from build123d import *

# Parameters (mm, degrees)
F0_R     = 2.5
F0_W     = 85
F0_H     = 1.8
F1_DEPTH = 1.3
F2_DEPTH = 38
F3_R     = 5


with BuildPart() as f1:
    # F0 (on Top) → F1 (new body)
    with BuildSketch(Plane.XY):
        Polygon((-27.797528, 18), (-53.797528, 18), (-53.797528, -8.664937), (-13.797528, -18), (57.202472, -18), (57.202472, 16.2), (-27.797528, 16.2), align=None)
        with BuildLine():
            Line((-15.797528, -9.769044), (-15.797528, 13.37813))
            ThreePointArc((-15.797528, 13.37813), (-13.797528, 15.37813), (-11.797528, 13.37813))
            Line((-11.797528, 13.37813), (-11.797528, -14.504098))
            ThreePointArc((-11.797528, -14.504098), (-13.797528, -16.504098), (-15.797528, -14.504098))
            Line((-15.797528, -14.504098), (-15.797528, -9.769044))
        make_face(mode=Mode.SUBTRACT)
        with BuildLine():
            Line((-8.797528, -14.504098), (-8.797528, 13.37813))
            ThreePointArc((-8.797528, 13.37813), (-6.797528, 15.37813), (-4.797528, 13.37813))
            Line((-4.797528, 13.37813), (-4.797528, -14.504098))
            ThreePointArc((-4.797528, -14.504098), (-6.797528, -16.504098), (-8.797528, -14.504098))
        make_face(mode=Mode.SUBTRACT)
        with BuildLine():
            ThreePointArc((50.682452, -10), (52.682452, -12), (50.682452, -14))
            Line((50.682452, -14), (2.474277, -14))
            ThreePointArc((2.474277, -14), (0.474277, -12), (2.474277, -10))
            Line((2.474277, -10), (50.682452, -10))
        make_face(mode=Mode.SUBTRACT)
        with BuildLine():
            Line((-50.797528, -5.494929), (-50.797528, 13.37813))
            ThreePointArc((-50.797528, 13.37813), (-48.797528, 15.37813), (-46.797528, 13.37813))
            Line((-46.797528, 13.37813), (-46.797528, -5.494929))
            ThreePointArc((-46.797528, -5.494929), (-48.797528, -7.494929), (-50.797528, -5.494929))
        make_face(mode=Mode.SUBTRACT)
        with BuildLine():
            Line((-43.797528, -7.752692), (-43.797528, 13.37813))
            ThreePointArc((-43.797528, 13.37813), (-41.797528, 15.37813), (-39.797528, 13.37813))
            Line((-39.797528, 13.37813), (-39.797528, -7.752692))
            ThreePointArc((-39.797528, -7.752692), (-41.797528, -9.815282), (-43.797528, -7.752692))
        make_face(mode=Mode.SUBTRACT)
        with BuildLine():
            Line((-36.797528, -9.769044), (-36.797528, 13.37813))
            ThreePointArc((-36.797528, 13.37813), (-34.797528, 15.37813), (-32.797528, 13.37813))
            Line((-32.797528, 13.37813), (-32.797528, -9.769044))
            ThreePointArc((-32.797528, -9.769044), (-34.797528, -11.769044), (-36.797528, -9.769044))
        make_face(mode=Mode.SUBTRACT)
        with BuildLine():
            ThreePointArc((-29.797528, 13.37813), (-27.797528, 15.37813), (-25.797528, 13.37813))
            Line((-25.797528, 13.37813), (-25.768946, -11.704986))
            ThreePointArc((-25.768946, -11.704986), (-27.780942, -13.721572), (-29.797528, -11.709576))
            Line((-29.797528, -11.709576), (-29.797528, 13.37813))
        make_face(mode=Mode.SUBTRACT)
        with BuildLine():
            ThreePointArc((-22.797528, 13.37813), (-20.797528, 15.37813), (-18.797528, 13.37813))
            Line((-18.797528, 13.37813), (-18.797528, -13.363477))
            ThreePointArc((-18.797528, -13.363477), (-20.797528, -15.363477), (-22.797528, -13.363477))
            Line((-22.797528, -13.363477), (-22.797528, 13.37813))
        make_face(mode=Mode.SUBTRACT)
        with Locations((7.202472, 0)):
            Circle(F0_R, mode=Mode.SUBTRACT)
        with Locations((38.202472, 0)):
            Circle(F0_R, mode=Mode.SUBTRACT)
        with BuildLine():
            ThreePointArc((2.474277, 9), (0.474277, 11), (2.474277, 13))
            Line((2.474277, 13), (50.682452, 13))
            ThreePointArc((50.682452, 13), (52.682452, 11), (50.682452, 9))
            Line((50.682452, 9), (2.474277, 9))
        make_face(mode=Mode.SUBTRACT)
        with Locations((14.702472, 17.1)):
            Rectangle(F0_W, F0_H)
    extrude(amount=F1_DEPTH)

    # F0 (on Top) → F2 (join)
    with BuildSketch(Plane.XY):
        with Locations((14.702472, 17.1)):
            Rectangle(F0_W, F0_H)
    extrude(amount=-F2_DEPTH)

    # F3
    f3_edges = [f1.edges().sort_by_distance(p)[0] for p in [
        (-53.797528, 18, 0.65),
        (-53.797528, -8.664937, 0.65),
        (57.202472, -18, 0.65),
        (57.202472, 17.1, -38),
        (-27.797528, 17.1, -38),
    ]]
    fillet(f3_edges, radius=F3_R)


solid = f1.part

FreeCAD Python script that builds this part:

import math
import FreeCAD as App
import Part
import Sketcher
from FreeCAD import Vector


def edges_at(feature, points):
    """Names of the edges that pass closest to the given points."""
    edges = feature.Shape.Edges
    near = lambda p: min(range(len(edges)), key=lambda i: edges[i].distToShape(Part.Vertex(*p))[0])
    return sorted({f"Edge{near(p) + 1}" for p in points})


def add_polygon(sketch, points):
    """Adds a closed chain of lines whose ends are joined by coincident constraints."""
    first, n = sketch.GeometryCount, len(points)
    for a, b in zip(points, points[1:] + points[:1]):
        sketch.addGeometry(Part.LineSegment(App.Vector(*a, 0), App.Vector(*b, 0)), False)
    for i in range(n):
        sketch.addConstraint(Sketcher.Constraint("Coincident", first + i, 2, first + (i + 1) % n, 1))

doc = App.newDocument("Part")
params = doc.addObject("Spreadsheet::Sheet", "Params")
for row, (alias, value) in enumerate([
    ("sketch1_diameter", "5 mm"),
    ("sketch1_radius", "2 mm"),
    ("sketch1_width", "71 mm"),
    ("sketch1_width2", "111 mm"),
    ("sketch1_height", "36 mm"),
    ("pad1_length", "1.3 mm"),
    ("sketch2_width", "85 mm"),
    ("sketch2_height", "1.8 mm"),
    ("pad2_length", "38 mm"),
    ("fillet_radius", "5 mm"),
], start=1):
    params.set(f"A{row}", alias)
    params.set(f"B{row}", "=" + value)
    params.setAlias(f"B{row}", alias)

body = doc.addObject("PartDesign::Body", "Body")

# Sketch on XY plane
sketch1 = doc.addObject("Sketcher::SketchObject", "Sketch")
body.addObject(sketch1)
sketch1.AttachmentSupport = (doc.XY_Plane, [""])
sketch1.MapMode = "FlatFace"
add_polygon(sketch1, [(-53.8, 18), (-53.8, -8.7), (-13.8, -18), (57.2, -18), (57.2, 18)])  # lines 0-4
sketch1.addGeometry(Part.LineSegment(Vector(2.5, -10, 0), Vector(50.7, -10, 0)), False)  # 5
sketch1.addGeometry(Part.ArcOfCircle(Part.Circle(Vector(50.7, -12, 0), Vector(0, 0, 1), 2), math.radians(-90), math.radians(90)), False)  # 6
sketch1.addGeometry(Part.LineSegment(Vector(50.7, -14, 0), Vector(2.5, -14, 0)), False)  # 7
sketch1.addGeometry(Part.ArcOfCircle(Part.Circle(Vector(2.5, -12, 0), Vector(0, 0, 1), 2), math.radians(90), math.radians(270)), False)  # 8
sketch1.addGeometry(Part.ArcOfCircle(Part.Circle(Vector(-41.8, -7.8, 0), Vector(0, 0, 1), 2), math.radians(178), math.radians(362)), False)  # 9
sketch1.addGeometry(Part.LineSegment(Vector(-43.8, -7.8, 0), Vector(-43.8, 13.4, 0)), False)  # 10
sketch1.addGeometry(Part.ArcOfCircle(Part.Circle(Vector(-41.8, 13.4, 0), Vector(0, 0, 1), 2), math.radians(0), math.radians(180)), False)  # 11
sketch1.addGeometry(Part.LineSegment(Vector(-39.8, 13.4, 0), Vector(-39.8, -7.8, 0)), False)  # 12
sketch1.addGeometry(Part.LineSegment(Vector(-29.8, -11.7, 0), Vector(-29.8, 13.4, 0)), False)  # 13
sketch1.addGeometry(Part.ArcOfCircle(Part.Circle(Vector(-27.8, 13.4, 0), Vector(0, 0, 1), 2), math.radians(0), math.radians(180)), False)  # 14
sketch1.addGeometry(Part.LineSegment(Vector(-25.8, 13.4, 0), Vector(-25.8, -11.7, 0)), False)  # 15
sketch1.addGeometry(Part.ArcOfCircle(Part.Circle(Vector(-27.8, -11.7, 0), Vector(0, 0, 1), 2), math.radians(-180), math.radians(0)), False)  # 16
sketch1.addGeometry(Part.ArcOfCircle(Part.Circle(Vector(-34.8, -9.8, 0), Vector(0, 0, 1), 2), math.radians(180), math.radians(360)), False)  # 17
sketch1.addGeometry(Part.LineSegment(Vector(-36.8, -9.8, 0), Vector(-36.8, 13.4, 0)), False)  # 18
sketch1.addGeometry(Part.ArcOfCircle(Part.Circle(Vector(-34.8, 13.4, 0), Vector(0, 0, 1), 2), math.radians(0), math.radians(180)), False)  # 19
sketch1.addGeometry(Part.LineSegment(Vector(-32.8, 13.4, 0), Vector(-32.8, -9.8, 0)), False)  # 20
sketch1.addGeometry(Part.ArcOfCircle(Part.Circle(Vector(-48.8, -5.5, 0), Vector(0, 0, 1), 2), math.radians(180), math.radians(360)), False)  # 21
sketch1.addGeometry(Part.LineSegment(Vector(-50.8, -5.5, 0), Vector(-50.8, 13.4, 0)), False)  # 22
sketch1.addGeometry(Part.ArcOfCircle(Part.Circle(Vector(-48.8, 13.4, 0), Vector(0, 0, 1), 2), math.radians(0), math.radians(180)), False)  # 23
sketch1.addGeometry(Part.LineSegment(Vector(-46.8, 13.4, 0), Vector(-46.8, -5.5, 0)), False)  # 24
sketch1.addGeometry(Part.LineSegment(Vector(-22.8, -13.4, 0), Vector(-22.8, 13.4, 0)), False)  # 25
sketch1.addGeometry(Part.ArcOfCircle(Part.Circle(Vector(-20.8, 13.4, 0), Vector(0, 0, 1), 2), math.radians(0), math.radians(180)), False)  # 26
sketch1.addGeometry(Part.LineSegment(Vector(-18.8, 13.4, 0), Vector(-18.8, -13.4, 0)), False)  # 27
sketch1.addGeometry(Part.ArcOfCircle(Part.Circle(Vector(-20.8, -13.4, 0), Vector(0, 0, 1), 2), math.radians(180), math.radians(360)), False)  # 28
sketch1.addGeometry(Part.LineSegment(Vector(-15.8, -14.5, 0), Vector(-15.8, 13.4, 0)), False)  # 29
sketch1.addGeometry(Part.ArcOfCircle(Part.Circle(Vector(-13.8, 13.4, 0), Vector(0, 0, 1), 2), math.radians(0), math.radians(180)), False)  # 30
sketch1.addGeometry(Part.LineSegment(Vector(-11.8, 13.4, 0), Vector(-11.8, -14.5, 0)), False)  # 31
sketch1.addGeometry(Part.ArcOfCircle(Part.Circle(Vector(-13.8, -14.5, 0), Vector(0, 0, 1), 2), math.radians(180), math.radians(360)), False)  # 32
sketch1.addGeometry(Part.ArcOfCircle(Part.Circle(Vector(-6.8, -14.5, 0), Vector(0, 0, 1), 2), math.radians(180), math.radians(360)), False)  # 33
sketch1.addGeometry(Part.LineSegment(Vector(-8.8, -14.5, 0), Vector(-8.8, 13.4, 0)), False)  # 34
sketch1.addGeometry(Part.ArcOfCircle(Part.Circle(Vector(-6.8, 13.4, 0), Vector(0, 0, 1), 2), math.radians(0), math.radians(180)), False)  # 35
sketch1.addGeometry(Part.LineSegment(Vector(-4.8, 13.4, 0), Vector(-4.8, -14.5, 0)), False)  # 36
sketch1.addGeometry(Part.Circle(Vector(7.2, 0, 0), Vector(0, 0, 1), 2.5), False)  # 37
sketch1.addGeometry(Part.Circle(Vector(38.2, 0, 0), Vector(0, 0, 1), 2.5), False)  # 38
sketch1.addGeometry(Part.LineSegment(Vector(50.7, 9, 0), Vector(2.5, 9, 0)), False)  # 39
sketch1.addGeometry(Part.ArcOfCircle(Part.Circle(Vector(2.5, 11, 0), Vector(0, 0, 1), 2), math.radians(90), math.radians(270)), False)  # 40
sketch1.addGeometry(Part.LineSegment(Vector(2.5, 13, 0), Vector(50.7, 13, 0)), False)  # 41
sketch1.addGeometry(Part.ArcOfCircle(Part.Circle(Vector(50.7, 11, 0), Vector(0, 0, 1), 2), math.radians(-90), math.radians(90)), False)  # 42
sketch1.addConstraint([
    Sketcher.Constraint("Tangent", 5, 2, 6, 2),
    Sketcher.Constraint("Tangent", 6, 1, 7, 1),
    Sketcher.Constraint("Tangent", 7, 2, 8, 2),
    Sketcher.Constraint("Tangent", 8, 1, 5, 1),
    Sketcher.Constraint("Coincident", 9, 1, 10, 1),
    Sketcher.Constraint("Tangent", 10, 2, 11, 2),
    Sketcher.Constraint("Tangent", 11, 1, 12, 1),
    Sketcher.Constraint("Coincident", 12, 2, 9, 2),
    Sketcher.Constraint("Tangent", 13, 2, 14, 2),
    Sketcher.Constraint("Coincident", 14, 1, 15, 1),
    Sketcher.Constraint("Tangent", 15, 2, 16, 2),
    Sketcher.Constraint("Coincident", 16, 1, 13, 1),
    Sketcher.Constraint("Tangent", 17, 1, 18, 1),
    Sketcher.Constraint("Tangent", 18, 2, 19, 2),
    Sketcher.Constraint("Tangent", 19, 1, 20, 1),
    Sketcher.Constraint("Tangent", 20, 2, 17, 2),
    Sketcher.Constraint("Tangent", 21, 1, 22, 1),
    Sketcher.Constraint("Tangent", 22, 2, 23, 2),
    Sketcher.Constraint("Tangent", 23, 1, 24, 1),
    Sketcher.Constraint("Tangent", 24, 2, 21, 2),
    Sketcher.Constraint("Tangent", 25, 2, 26, 2),
    Sketcher.Constraint("Tangent", 26, 1, 27, 1),
    Sketcher.Constraint("Tangent", 27, 2, 28, 2),
    Sketcher.Constraint("Tangent", 28, 1, 25, 1),
    Sketcher.Constraint("Tangent", 29, 2, 30, 2),
    Sketcher.Constraint("Tangent", 30, 1, 31, 1),
    Sketcher.Constraint("Tangent", 31, 2, 32, 2),
    Sketcher.Constraint("Tangent", 32, 1, 29, 1),
    Sketcher.Constraint("Tangent", 33, 1, 34, 1),
    Sketcher.Constraint("Tangent", 34, 2, 35, 2),
    Sketcher.Constraint("Tangent", 35, 1, 36, 1),
    Sketcher.Constraint("Tangent", 36, 2, 33, 2),
    Sketcher.Constraint("Tangent", 39, 2, 40, 2),
    Sketcher.Constraint("Tangent", 40, 1, 41, 1),
    Sketcher.Constraint("Tangent", 41, 2, 42, 2),
    Sketcher.Constraint("Tangent", 42, 1, 39, 1),
    Sketcher.Constraint("Vertical", 0),
    Sketcher.Constraint("Horizontal", 2),
    Sketcher.Constraint("Vertical", 3),
    Sketcher.Constraint("Horizontal", 4),
    Sketcher.Constraint("Horizontal", 5),
    Sketcher.Constraint("Horizontal", 7),
    Sketcher.Constraint("Vertical", 10),
    Sketcher.Constraint("Vertical", 12),
    Sketcher.Constraint("Vertical", 13),
    Sketcher.Constraint("Vertical", 18),
    Sketcher.Constraint("Vertical", 20),
    Sketcher.Constraint("Vertical", 22),
    Sketcher.Constraint("Vertical", 24),
    Sketcher.Constraint("Vertical", 25),
    Sketcher.Constraint("Vertical", 27),
    Sketcher.Constraint("Vertical", 29),
    Sketcher.Constraint("Vertical", 31),
    Sketcher.Constraint("Vertical", 34),
    Sketcher.Constraint("Vertical", 36),
    Sketcher.Constraint("Horizontal", 39),
    Sketcher.Constraint("Horizontal", 41),
    Sketcher.Constraint("Equal", 8, 11),
    Sketcher.Constraint("Equal", 11, 14),
    Sketcher.Constraint("Equal", 14, 17),
    Sketcher.Constraint("Equal", 19, 21),
    Sketcher.Constraint("Equal", 23, 26),
    Sketcher.Constraint("Equal", 28, 30),
    Sketcher.Constraint("Equal", 32, 33),
    Sketcher.Constraint("Equal", 37, 38),
    Sketcher.Constraint("Equal", 35, 40),
    Sketcher.Constraint("PointOnObject", 37, 3, -1),
    Sketcher.Constraint("PointOnObject", 38, 3, -1),
    Sketcher.Constraint("Horizontal", 11, 3, 14, 3),
    Sketcher.Constraint("Horizontal", 14, 3, 19, 3),
    Sketcher.Constraint("Horizontal", 19, 3, 23, 3),
    Sketcher.Constraint("Horizontal", 23, 3, 26, 3),
    Sketcher.Constraint("Horizontal", 26, 3, 30, 3),
    Sketcher.Constraint("Horizontal", 32, 3, 33, 3),
    Sketcher.Constraint("Horizontal", 30, 3, 35, 3),
    Sketcher.Constraint("Horizontal", 9, 1, 12, 2),
    Sketcher.Constraint("Horizontal", 13, 2, 14, 1),
    Sketcher.Constraint("Vertical", 8, 3, 40, 3),
    Sketcher.Constraint("Vertical", 6, 3, 42, 3),
    Sketcher.Constraint("Vertical", 32, 3, 1, 2),
    Sketcher.Constraint("Diameter", 37, 5.0),
    Sketcher.Constraint("Radius", 6, 2.0),
    Sketcher.Constraint("DistanceX", 2, 1, 2, 2, 71.0),
    Sketcher.Constraint("DistanceX", 4, 2, 4, 1, 111.0),
    Sketcher.Constraint("DistanceY", 3, 1, 3, 2, 36.0),
    Sketcher.Constraint("DistanceY", 6, 3, -1, 1, 12.0),
    Sketcher.Constraint("DistanceY", -1, 1, 40, 3, 11.0),
    Sketcher.Constraint("DistanceY", 1, 2, -1, 1, 18.0),
    Sketcher.Constraint("Radius", 9, 2.00095),
    Sketcher.Constraint("Radius", 16, 2.014292),
    Sketcher.Constraint("DistanceY", 22, 1, 22, 2, 18.873059),
    Sketcher.Constraint("DistanceY", 29, 1, 29, 2, 27.882228),
    Sketcher.Constraint("DistanceY", 32, 3, -1, 1, 14.504098),
    Sketcher.Constraint("Distance", 1, 41.074851),
    Sketcher.Constraint("DistanceX", 5, 1, 5, 2, 48.208175),
    Sketcher.Constraint("DistanceY", 10, 1, 10, 2, 21.130822),
    Sketcher.Constraint("DistanceY", 13, 1, 13, 2, 25.087706),
    Sketcher.Constraint("DistanceY", 18, 1, 18, 2, 23.147174),
    Sketcher.Constraint("DistanceY", 25, 1, 25, 2, 26.741607),
    Sketcher.Constraint("DistanceX", -1, 1, 6, 3, 50.682452),
    Sketcher.Constraint("DistanceX", 14, 3, -1, 1, 27.797528),
    Sketcher.Constraint("DistanceY", 16, 3, -1, 1, 11.707281),
    Sketcher.Constraint("DistanceX", 26, 3, -1, 1, 20.797528),
    Sketcher.Constraint("DistanceX", 9, 3, -1, 1, 41.797528),
    Sketcher.Constraint("DistanceX", 17, 3, -1, 1, 34.797528),
    Sketcher.Constraint("DistanceX", 21, 3, -1, 1, 48.797528),
    Sketcher.Constraint("DistanceX", 30, 3, -1, 1, 13.797528),
    Sketcher.Constraint("DistanceX", 33, 3, -1, 1, 6.797528),
    Sketcher.Constraint("DistanceX", -1, 1, 37, 3, 7.202472),
    Sketcher.Constraint("DistanceX", -1, 1, 38, 3, 38.202472),
])
sketch1.setExpression("Constraints[85]", "Params.sketch1_diameter")
sketch1.setExpression("Constraints[86]", "Params.sketch1_radius")
sketch1.setExpression("Constraints[87]", "Params.sketch1_width")
sketch1.setExpression("Constraints[88]", "Params.sketch1_width2")
sketch1.setExpression("Constraints[89]", "Params.sketch1_height")
pad1 = doc.addObject("PartDesign::Pad", "Pad")
body.addObject(pad1)
pad1.Profile = sketch1
pad1.setExpression("Length", "Params.pad1_length")

# Sketch on XY plane
sketch2 = doc.addObject("Sketcher::SketchObject", "Sketch001")
body.addObject(sketch2)
sketch2.AttachmentSupport = (doc.XY_Plane, [""])
sketch2.MapMode = "FlatFace"
add_polygon(sketch2, [(-27.8, 18), (-27.8, 16.2), (57.2, 16.2), (57.2, 18)])  # lines 0-3
sketch2.addConstraint([
    Sketcher.Constraint("Vertical", 0),
    Sketcher.Constraint("Horizontal", 1),
    Sketcher.Constraint("Vertical", 2),
    Sketcher.Constraint("Horizontal", 3),
    Sketcher.Constraint("DistanceX", 1, 1, 1, 2, 85.0),
    Sketcher.Constraint("DistanceY", 0, 2, 0, 1, 1.8),
    Sketcher.Constraint("DistanceY", -1, 1, 2, 2, 18.0),
    Sketcher.Constraint("DistanceX", 0, 2, -1, 1, 27.797528),
])
sketch2.setExpression("Constraints[8]", "Params.sketch2_width")
sketch2.setExpression("Constraints[9]", "Params.sketch2_height")
pad2 = doc.addObject("PartDesign::Pad", "Pad001")
body.addObject(pad2)
pad2.Profile = sketch2
pad2.setExpression("Length", "Params.pad2_length")
pad2.Reversed = True
doc.recompute()

fillet = doc.addObject("PartDesign::Fillet", "Fillet")
body.addObject(fillet)
fillet.Base = (pad2, edges_at(pad2, [
    (-53.798, 18, 0.65),
    (-53.798, -8.665, 0.65),
    (57.202, -18, 0.65),
    (57.202, 17.1, -38),
    (-27.798, 17.1, -38),
]))
fillet.setExpression("Radius", "Params.fillet_radius")

doc.recompute()
